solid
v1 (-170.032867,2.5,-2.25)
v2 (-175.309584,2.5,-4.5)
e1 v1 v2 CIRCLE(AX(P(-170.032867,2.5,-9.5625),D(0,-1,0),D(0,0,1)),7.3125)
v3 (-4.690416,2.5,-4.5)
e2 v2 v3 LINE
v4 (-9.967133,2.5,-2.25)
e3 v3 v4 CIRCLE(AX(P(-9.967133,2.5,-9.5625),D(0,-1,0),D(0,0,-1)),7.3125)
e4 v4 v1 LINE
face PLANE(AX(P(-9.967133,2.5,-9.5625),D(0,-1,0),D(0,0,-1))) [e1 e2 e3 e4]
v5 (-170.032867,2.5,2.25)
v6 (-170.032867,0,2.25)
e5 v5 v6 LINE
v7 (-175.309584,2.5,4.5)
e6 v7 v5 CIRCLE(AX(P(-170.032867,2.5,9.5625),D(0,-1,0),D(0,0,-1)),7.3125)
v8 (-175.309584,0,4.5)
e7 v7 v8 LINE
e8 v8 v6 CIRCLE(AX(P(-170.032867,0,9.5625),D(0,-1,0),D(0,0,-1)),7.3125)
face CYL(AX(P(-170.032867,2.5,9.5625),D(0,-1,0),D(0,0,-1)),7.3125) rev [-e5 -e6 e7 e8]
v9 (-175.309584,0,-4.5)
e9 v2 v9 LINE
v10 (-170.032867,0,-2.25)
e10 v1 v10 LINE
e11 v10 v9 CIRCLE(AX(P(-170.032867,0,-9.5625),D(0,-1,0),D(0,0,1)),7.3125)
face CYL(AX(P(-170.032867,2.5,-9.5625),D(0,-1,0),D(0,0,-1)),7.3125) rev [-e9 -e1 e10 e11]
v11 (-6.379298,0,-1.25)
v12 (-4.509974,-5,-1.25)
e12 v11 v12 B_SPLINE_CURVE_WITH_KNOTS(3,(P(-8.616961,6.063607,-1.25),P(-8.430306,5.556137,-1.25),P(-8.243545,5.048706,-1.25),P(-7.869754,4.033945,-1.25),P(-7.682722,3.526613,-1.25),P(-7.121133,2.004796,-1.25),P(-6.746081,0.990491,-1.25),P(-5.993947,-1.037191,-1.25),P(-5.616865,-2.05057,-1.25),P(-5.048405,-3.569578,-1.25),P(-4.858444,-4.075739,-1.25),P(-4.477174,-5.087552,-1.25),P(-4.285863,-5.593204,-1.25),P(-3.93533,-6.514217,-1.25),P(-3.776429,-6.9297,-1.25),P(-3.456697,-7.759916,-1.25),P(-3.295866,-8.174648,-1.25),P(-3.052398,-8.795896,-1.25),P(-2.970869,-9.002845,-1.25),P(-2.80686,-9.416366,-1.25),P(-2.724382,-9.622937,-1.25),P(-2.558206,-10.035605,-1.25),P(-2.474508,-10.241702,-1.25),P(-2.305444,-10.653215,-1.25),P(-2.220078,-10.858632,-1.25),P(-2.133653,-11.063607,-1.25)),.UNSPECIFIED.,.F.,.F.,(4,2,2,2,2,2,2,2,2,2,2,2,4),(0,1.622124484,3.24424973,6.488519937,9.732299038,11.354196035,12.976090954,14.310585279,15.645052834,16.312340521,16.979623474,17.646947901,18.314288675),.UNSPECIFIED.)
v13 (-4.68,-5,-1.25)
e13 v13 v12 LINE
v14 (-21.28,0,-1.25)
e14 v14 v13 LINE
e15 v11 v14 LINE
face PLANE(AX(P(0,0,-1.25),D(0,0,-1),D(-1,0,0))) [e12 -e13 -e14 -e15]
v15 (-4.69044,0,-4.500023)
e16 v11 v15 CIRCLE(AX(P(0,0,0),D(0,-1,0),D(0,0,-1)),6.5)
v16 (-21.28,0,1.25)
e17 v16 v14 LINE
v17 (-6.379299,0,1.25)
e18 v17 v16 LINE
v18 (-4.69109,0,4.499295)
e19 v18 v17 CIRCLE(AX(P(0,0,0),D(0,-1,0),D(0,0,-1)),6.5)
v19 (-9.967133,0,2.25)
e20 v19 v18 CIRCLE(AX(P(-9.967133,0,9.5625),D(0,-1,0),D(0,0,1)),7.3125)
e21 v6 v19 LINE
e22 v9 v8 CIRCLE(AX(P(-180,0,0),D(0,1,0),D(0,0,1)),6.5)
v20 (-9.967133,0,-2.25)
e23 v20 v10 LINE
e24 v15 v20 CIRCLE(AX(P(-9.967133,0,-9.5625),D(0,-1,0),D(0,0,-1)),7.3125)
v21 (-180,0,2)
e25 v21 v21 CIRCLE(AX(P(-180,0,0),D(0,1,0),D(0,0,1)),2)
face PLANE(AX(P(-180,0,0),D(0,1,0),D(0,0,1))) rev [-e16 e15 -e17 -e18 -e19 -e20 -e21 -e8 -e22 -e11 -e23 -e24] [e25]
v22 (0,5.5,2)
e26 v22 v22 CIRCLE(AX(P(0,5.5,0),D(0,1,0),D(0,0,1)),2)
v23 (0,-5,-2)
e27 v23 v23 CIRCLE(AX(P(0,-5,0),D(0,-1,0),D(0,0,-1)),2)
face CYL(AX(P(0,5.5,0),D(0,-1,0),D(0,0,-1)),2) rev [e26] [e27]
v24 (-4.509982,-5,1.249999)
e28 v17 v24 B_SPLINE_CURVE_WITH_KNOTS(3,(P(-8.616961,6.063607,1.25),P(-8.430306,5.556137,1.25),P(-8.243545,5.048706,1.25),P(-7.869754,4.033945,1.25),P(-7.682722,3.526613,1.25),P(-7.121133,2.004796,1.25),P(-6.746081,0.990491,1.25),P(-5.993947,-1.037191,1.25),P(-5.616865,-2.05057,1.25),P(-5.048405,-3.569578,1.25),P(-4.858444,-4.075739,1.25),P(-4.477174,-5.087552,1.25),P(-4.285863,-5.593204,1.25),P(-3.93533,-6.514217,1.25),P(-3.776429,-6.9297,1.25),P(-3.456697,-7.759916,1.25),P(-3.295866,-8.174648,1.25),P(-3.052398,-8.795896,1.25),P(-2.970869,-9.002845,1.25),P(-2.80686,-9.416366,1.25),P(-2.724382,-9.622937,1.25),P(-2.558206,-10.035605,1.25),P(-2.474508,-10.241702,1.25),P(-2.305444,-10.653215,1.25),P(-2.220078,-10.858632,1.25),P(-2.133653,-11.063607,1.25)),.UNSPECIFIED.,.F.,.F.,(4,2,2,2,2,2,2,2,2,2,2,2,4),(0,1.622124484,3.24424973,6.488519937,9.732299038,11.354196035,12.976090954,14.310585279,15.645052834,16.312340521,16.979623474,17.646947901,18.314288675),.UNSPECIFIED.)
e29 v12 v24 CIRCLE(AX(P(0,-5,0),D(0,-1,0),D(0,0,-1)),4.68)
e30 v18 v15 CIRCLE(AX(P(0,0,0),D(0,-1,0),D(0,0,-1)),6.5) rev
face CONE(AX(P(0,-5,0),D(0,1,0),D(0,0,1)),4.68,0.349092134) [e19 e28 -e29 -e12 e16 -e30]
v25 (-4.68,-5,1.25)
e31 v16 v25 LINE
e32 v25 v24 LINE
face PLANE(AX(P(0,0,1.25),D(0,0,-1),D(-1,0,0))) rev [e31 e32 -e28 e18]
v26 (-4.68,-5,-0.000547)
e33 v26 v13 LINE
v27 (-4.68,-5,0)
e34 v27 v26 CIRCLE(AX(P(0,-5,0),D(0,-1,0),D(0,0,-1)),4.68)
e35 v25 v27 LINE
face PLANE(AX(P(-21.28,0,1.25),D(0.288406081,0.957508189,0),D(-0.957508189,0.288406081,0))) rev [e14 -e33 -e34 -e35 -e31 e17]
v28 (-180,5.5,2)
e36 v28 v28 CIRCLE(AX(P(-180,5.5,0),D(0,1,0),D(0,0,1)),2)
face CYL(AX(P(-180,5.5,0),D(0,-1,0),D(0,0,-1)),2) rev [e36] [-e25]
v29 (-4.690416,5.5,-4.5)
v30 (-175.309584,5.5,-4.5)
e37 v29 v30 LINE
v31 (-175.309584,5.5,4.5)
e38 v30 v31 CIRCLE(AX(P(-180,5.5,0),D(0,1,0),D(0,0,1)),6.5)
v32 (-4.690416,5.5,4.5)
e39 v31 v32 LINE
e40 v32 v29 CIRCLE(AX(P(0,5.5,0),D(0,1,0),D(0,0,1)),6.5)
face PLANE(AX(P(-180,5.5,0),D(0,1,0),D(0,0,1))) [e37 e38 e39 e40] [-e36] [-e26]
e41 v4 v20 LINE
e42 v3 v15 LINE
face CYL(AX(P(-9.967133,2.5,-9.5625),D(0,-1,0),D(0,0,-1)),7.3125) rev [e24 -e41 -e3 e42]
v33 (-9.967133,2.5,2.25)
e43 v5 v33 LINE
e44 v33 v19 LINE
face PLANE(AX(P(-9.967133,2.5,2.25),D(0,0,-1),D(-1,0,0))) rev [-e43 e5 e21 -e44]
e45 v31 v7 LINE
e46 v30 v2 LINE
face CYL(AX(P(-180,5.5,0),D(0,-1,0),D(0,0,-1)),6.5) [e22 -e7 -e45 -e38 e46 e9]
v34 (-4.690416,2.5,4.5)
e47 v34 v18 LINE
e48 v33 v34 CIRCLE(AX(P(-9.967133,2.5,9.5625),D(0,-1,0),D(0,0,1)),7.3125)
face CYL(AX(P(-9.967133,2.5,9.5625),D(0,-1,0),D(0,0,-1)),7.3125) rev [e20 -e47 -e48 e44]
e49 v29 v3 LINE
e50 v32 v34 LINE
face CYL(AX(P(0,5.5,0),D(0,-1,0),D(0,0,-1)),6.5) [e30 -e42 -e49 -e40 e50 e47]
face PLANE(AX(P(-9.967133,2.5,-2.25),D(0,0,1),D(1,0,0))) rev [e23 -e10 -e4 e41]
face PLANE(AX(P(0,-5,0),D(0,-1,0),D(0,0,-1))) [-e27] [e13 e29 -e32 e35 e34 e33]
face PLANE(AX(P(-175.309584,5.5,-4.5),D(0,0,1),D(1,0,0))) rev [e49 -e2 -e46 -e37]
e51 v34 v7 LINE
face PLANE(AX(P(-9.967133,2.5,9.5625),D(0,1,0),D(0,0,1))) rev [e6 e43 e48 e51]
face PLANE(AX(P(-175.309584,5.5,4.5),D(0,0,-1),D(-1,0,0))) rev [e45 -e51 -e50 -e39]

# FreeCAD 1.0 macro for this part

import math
import FreeCAD as App
import Part
import Sketcher
from FreeCAD import Vector
Q = App.Units.Quantity


def add_polygon(sketch, points):
    """Adds a closed chain of lines whose ends are joined by coincident constraints."""
    first, n = sketch.GeometryCount, len(points)
    for a, b in zip(points, points[1:] + points[:1]):
        sketch.addGeometry(Part.LineSegment(App.Vector(*a, 0), App.Vector(*b, 0)), False)
    for i in range(n):
        sketch.addConstraint(Sketcher.Constraint("Coincident", first + i, 2, first + (i + 1) % n, 1))

doc = App.newDocument("Part")
body = doc.addObject("PartDesign::Body", "Body")

sketch1 = body.newObject("Sketcher::SketchObject", "Sketch")
sketch1.AttachmentSupport = (doc.getObject("XZ_Plane"), [""])
sketch1.MapMode = "FlatFace"
sketch1.addGeometry([
    Part.LineSegment(Vector(-4.690416, -4.5, 0), Vector(-175.309584, -4.5, 0)),
    Part.ArcOfCircle(Part.Circle(Vector(-180, 0, 0), Vector(0, 0, 1), 6.5), math.radians(43.813061), math.radians(316.186939)),
    Part.LineSegment(Vector(-175.309584, 4.5, 0), Vector(-4.690416, 4.5, 0)),
    Part.ArcOfCircle(Part.Circle(Vector(0, 0, 0), Vector(0, 0, 1), 6.5), math.radians(-136.186939), math.radians(136.186939)),
    Part.Circle(Vector(0, 0, 0), Vector(0, 0, 1), 2),
    Part.Circle(Vector(-180, 0, 0), Vector(0, 0, 1), 2),
], False)
sketch1.addConstraint([
    Sketcher.Constraint("Coincident", 0, 2, 1, 2),
    Sketcher.Constraint("Coincident", 1, 1, 2, 1),
    Sketcher.Constraint("Coincident", 2, 2, 3, 2),
    Sketcher.Constraint("Coincident", 3, 1, 0, 1),
    Sketcher.Constraint("Horizontal", 0),
    Sketcher.Constraint("Horizontal", 2),
    Sketcher.Constraint("Coincident", 3, 3, -1, 1),
    Sketcher.Constraint("Coincident", 4, 3, -1, 1),
    Sketcher.Constraint("Coincident", 5, 3, 1, 3),
    Sketcher.Constraint("Equal", 1, 3),
    Sketcher.Constraint("Equal", 4, 5),
    Sketcher.Constraint("Symmetric", 0, 2, 1, 1, -1),
    Sketcher.Constraint("Diameter", 4, Q("4 mm")),
    Sketcher.Constraint("Radius", 1, Q("6.5 mm")),
    Sketcher.Constraint("DistanceX", 1, 3, -1, 1, Q("180 mm")),
    Sketcher.Constraint("DistanceY", 0, 2, 1, 1, Q("9 mm")),
])
pad1 = body.newObject("PartDesign::Pad", "Pad")
pad1.Profile = sketch1
pad1.Length = 5.5
pad1.Reversed = True

sketch2 = body.newObject("Sketcher::SketchObject", "Sketch001")
sketch2.AttachmentSupport = (doc.getObject("XZ_Plane"), [""])
sketch2.MapMode = "FlatFace"
sketch2.addGeometry([
    Part.LineSegment(Vector(-170.032867, 2.25, 0), Vector(-9.967133, 2.25, 0)),
    Part.ArcOfCircle(Part.Circle(Vector(-9.967133, 9.5625, 0), Vector(0, 0, 1), 7.3125), math.radians(-90), math.radians(-43.813061)),
    Part.LineSegment(Vector(-4.690416, 4.5, 0), Vector(-175.309584, 4.5, 0)),
    Part.ArcOfCircle(Part.Circle(Vector(-170.032867, 9.5625, 0), Vector(0, 0, 1), 7.3125), math.radians(-136.186939), math.radians(-90)),
    Part.LineSegment(Vector(-9.967133, -2.25, 0), Vector(-170.032867, -2.25, 0)),
    Part.ArcOfCircle(Part.Circle(Vector(-170.032867, -9.5625, 0), Vector(0, 0, 1), 7.3125), math.radians(90), math.radians(136.186939)),
    Part.LineSegment(Vector(-175.309584, -4.5, 0), Vector(-4.690416, -4.5, 0)),
    Part.ArcOfCircle(Part.Circle(Vector(-9.967133, -9.5625, 0), Vector(0, 0, 1), 7.3125), math.radians(43.813061), math.radians(90)),
], False)
sketch2.addConstraint([
    Sketcher.Constraint("Tangent", 0, 2, 1, 1),
    Sketcher.Constraint("Coincident", 1, 2, 2, 1),
    Sketcher.Constraint("Coincident", 2, 2, 3, 1),
    Sketcher.Constraint("Tangent", 3, 2, 0, 1),
    Sketcher.Constraint("Tangent", 4, 2, 5, 1),
    Sketcher.Constraint("Coincident", 5, 2, 6, 1),
    Sketcher.Constraint("Coincident", 6, 2, 7, 1),
    Sketcher.Constraint("Tangent", 7, 2, 4, 1),
    Sketcher.Constraint("Horizontal", 0),
    Sketcher.Constraint("Horizontal", 2),
    Sketcher.Constraint("Horizontal", 4),
    Sketcher.Constraint("Horizontal", 6),
    Sketcher.Constraint("Equal", 1, 3),
    Sketcher.Constraint("Equal", 3, 5),
    Sketcher.Constraint("Equal", 5, 7),
    Sketcher.Constraint("Symmetric", 3, 3, 5, 3, -1),
    Sketcher.Constraint("Symmetric", 1, 2, 6, 2, -1),
    Sketcher.Constraint("DistanceY", 5, 2, 2, 2, Q("9 mm")),
    Sketcher.Constraint("Radius", 1, Q("7.3125 mm")),
    Sketcher.Constraint("DistanceY", 4, 2, 3, 2, Q("4.5 mm")),
    Sketcher.Constraint("DistanceX", 2, 2, 2, 1, Q("170.619168 mm")),
    Sketcher.Constraint("DistanceX", 1, 3, -1, 1, Q("9.967133 mm")),
])
pocket1 = body.newObject("PartDesign::Pocket", "Pocket")
pocket1.Profile = sketch2
pocket1.Length = 2.5

sketch3 = body.newObject("Sketcher::SketchObject", "Sketch002")
sketch3.AttachmentSupport = (doc.getObject("XZ_Plane"), [""])
sketch3.MapMode = "FlatFace"
sketch3.addGeometry(Part.Circle(Vector(0, 0, 0), Vector(0, 0, 1), 6.5), False)
sketch3.addConstraint([
    Sketcher.Constraint("Coincident", 0, 3, -1, 1),
    Sketcher.Constraint("Diameter", 0, Q("13 mm")),
])

sketch4 = body.newObject("Sketcher::SketchObject", "Sketch003")
sketch4.AttachmentSupport = (doc.getObject("XZ_Plane"), [""])
sketch4.MapMode = "FlatFace"
sketch4.AttachmentOffset = App.Placement(Vector(0, 0, 5), App.Rotation())
sketch4.addGeometry(Part.Circle(Vector(0, 0, 0), Vector(0, 0, 1), 4.68), False)
sketch4.addConstraint([
    Sketcher.Constraint("Coincident", 0, 3, -1, 1),
    Sketcher.Constraint("Diameter", 0, Q("9.36 mm")),
])

additiveloft = body.newObject("PartDesign::AdditiveLoft", "AdditiveLoft")
additiveloft.Profile = sketch3
additiveloft.Sections = [sketch4]

sketch5 = body.newObject("Sketcher::SketchObject", "Sketch004")
sketch5.AttachmentSupport = (doc.getObject("XZ_Plane"), [""])
sketch5.MapMode = "FlatFace"
sketch5.AttachmentOffset = App.Placement(Vector(0, 0, 5), App.Rotation())
sketch5.addGeometry(Part.Circle(Vector(0, 0, 0), Vector(0, 0, 1), 2), False)
sketch5.addConstraint([
    Sketcher.Constraint("Coincident", 0, 3, -1, 1),
    Sketcher.Constraint("Diameter", 0, Q("4 mm")),
])
pocket2 = body.newObject("PartDesign::Pocket", "Pocket001")
pocket2.Profile = sketch5
pocket2.Type = "ThroughAll"

sketch6 = body.newObject("Sketcher::SketchObject", "Sketch005")
sketch6.AttachmentSupport = (doc.getObject("XY_Plane"), [""])
sketch6.MapMode = "FlatFace"
add_polygon(sketch6, [(-3.08, 0), (-21.28, 0), (-4.68, -5), (-3.08, -5)])
sketch6.addConstraint([
    Sketcher.Constraint("Horizontal", 0),
    Sketcher.Constraint("Horizontal", 2),
    Sketcher.Constraint("Vertical", 3),
    Sketcher.Constraint("PointOnObject", 0, 2, -1),
    Sketcher.Constraint("DistanceY", 3, 1, 3, 2, Q("5 mm")),
    Sketcher.Constraint("DistanceX", 0, 2, 0, 1, Q("18.2 mm")),
    Sketcher.Constraint("DistanceX", 2, 1, 2, 2, Q("1.6 mm")),
    Sketcher.Constraint("DistanceX", 0, 2, -1, 1, Q("21.28 mm")),
])
pad2 = body.newObject("PartDesign::Pad", "Pad001")
pad2.Profile = sketch6
pad2.Length = 2.5
pad2.Midplane = True

doc.recompute()
